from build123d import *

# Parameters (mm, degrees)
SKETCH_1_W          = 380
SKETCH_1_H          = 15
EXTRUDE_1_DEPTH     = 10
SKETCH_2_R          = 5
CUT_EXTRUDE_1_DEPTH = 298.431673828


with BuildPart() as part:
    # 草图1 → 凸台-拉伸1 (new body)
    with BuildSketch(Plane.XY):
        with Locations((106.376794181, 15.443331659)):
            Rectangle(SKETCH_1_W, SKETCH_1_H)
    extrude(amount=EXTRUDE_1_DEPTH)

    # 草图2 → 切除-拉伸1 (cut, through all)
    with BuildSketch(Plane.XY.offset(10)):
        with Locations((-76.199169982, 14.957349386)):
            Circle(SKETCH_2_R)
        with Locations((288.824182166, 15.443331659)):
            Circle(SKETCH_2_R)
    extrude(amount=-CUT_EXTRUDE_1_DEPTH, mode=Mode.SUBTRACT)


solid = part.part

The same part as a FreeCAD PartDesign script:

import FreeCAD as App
import Part
import Sketcher

V = App.Vector

doc = App.newDocument("Part")
body = doc.addObject("PartDesign::Body", "Body")

sketch1 = body.newObject("Sketcher::SketchObject", "Sketch")
sketch1.AttachmentSupport = (doc.getObject("XY_Plane"), [""])
sketch1.MapMode = "FlatFace"
sketch1.addGeometry(Part.LineSegment(V(-83.623206, 22.943332, 0), V(-83.623206, 7.943332, 0)), False)
sketch1.addGeometry(Part.LineSegment(V(-83.623206, 7.943332, 0), V(296.376794, 7.943332, 0)), False)
sketch1.addGeometry(Part.LineSegment(V(296.376794, 7.943332, 0), V(296.376794, 22.943332, 0)), False)
sketch1.addGeometry(Part.LineSegment(V(296.376794, 22.943332, 0), V(-83.623206, 22.943332, 0)), False)
sketch1.addConstraint(Sketcher.Constraint("Coincident", 0, 2, 1, 1))
sketch1.addConstraint(Sketcher.Constraint("Coincident", 1, 2, 2, 1))
sketch1.addConstraint(Sketcher.Constraint("Coincident", 2, 2, 3, 1))
sketch1.addConstraint(Sketcher.Constraint("Coincident", 3, 2, 0, 1))
sketch1.addConstraint(Sketcher.Constraint("Vertical", 0))
sketch1.addConstraint(Sketcher.Constraint("Horizontal", 1))
sketch1.addConstraint(Sketcher.Constraint("Vertical", 2))
sketch1.addConstraint(Sketcher.Constraint("Horizontal", 3))
sketch1.addConstraint(Sketcher.Constraint("DistanceX", 1, 1, 1, 2, 380.0))
sketch1.addConstraint(Sketcher.Constraint("DistanceY", 0, 2, 0, 1, 15.0))
sketch1.addConstraint(Sketcher.Constraint("DistanceY", -1, 1, 0, 2, 7.943332))
sketch1.addConstraint(Sketcher.Constraint("DistanceX", 0, 2, -1, 1, 83.623206))
pad1 = body.newObject("PartDesign::Pad", "Pad")
pad1.Profile = sketch1
pad1.Length = 10

sketch2 = body.newObject("Sketcher::SketchObject", "Sketch001")
sketch2.AttachmentSupport = (doc.getObject("XY_Plane"), [""])
sketch2.MapMode = "FlatFace"
sketch2.AttachmentOffset = App.Placement(V(0, 0, 10), App.Rotation())
sketch2.addGeometry(Part.Circle(V(-76.19917, 14.957349, 0), V(0, 0, 1), 5), False)
sketch2.addGeometry(Part.Circle(V(288.824182, 15.443332, 0), V(0, 0, 1), 5), False)
sketch2.addConstraint(Sketcher.Constraint("Equal", 0, 1))
sketch2.addConstraint(Sketcher.Constraint("Diameter", 0, 10.0))
sketch2.addConstraint(Sketcher.Constraint("DistanceX", 0, 3, -1, 1, 76.19917))
sketch2.addConstraint(Sketcher.Constraint("DistanceY", -1, 1, 0, 3, 14.957349))
sketch2.addConstraint(Sketcher.Constraint("DistanceY", -1, 1, 1, 3, 15.443332))
sketch2.addConstraint(Sketcher.Constraint("DistanceX", -1, 1, 1, 3, 288.824182))
pocket1 = body.newObject("PartDesign::Pocket", "Pocket")
pocket1.Profile = sketch2
pocket1.Type = "ThroughAll"

doc.recompute()
